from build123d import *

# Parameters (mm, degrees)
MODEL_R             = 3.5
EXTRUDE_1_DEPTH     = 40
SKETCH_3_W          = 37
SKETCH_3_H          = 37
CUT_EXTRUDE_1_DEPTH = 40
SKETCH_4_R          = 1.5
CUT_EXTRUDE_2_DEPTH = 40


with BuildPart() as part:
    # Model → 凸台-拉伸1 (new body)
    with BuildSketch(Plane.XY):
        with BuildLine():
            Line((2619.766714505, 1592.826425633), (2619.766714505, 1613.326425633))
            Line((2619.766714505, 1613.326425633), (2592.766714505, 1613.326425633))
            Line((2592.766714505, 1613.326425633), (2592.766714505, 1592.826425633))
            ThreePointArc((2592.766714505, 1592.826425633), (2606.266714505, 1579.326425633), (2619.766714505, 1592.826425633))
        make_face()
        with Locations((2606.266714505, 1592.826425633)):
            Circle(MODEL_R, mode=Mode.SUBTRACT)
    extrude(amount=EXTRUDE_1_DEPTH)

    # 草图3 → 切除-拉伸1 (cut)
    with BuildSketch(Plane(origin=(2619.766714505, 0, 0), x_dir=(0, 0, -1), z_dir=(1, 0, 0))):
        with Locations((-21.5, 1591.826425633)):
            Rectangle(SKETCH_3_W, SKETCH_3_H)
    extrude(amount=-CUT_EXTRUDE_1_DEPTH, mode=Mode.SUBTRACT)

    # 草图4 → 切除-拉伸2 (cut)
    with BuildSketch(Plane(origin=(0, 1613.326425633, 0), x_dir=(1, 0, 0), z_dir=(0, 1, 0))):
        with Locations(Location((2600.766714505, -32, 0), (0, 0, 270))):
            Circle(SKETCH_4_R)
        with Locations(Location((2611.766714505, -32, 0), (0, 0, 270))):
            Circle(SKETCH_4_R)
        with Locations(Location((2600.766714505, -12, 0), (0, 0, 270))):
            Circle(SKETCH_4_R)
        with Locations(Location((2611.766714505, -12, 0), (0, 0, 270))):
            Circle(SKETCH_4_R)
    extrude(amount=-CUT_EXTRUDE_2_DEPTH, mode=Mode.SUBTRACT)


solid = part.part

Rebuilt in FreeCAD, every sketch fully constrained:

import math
import FreeCAD as App
import Part
import Sketcher
from FreeCAD import Vector
Q = App.Units.Quantity


def add_polygon(sketch, points):
    """Adds a closed chain of lines whose ends are joined by coincident constraints."""
    first, n = sketch.GeometryCount, len(points)
    for a, b in zip(points, points[1:] + points[:1]):
        sketch.addGeometry(Part.LineSegment(App.Vector(*a, 0), App.Vector(*b, 0)), False)
    for i in range(n):
        sketch.addConstraint(Sketcher.Constraint("Coincident", first + i, 2, first + (i + 1) % n, 1))

doc = App.newDocument("Part")
body = doc.addObject("PartDesign::Body", "Body")

sketch1 = body.newObject("Sketcher::SketchObject", "Sketch")
sketch1.AttachmentSupport = (doc.getObject("XY_Plane"), [""])
sketch1.MapMode = "FlatFace"
sketch1.addGeometry([
    Part.LineSegment(Vector(2619.8, 1592.8, 0), Vector(2619.8, 1613.3, 0)),
    Part.LineSegment(Vector(2619.8, 1613.3, 0), Vector(2592.8, 1613.3, 0)),
    Part.LineSegment(Vector(2592.8, 1613.3, 0), Vector(2592.8, 1592.8, 0)),
    Part.ArcOfCircle(Part.Circle(Vector(2606.3, 1592.8, 0), Vector(0, 0, 1), 13.5), math.radians(180), math.radians(360)),
    Part.Circle(Vector(2606.3, 1592.8, 0), Vector(0, 0, 1), 3.5),
], False)
sketch1.addConstraint([
    Sketcher.Constraint("Coincident", 0, 2, 1, 1),
    Sketcher.Constraint("Coincident", 1, 2, 2, 1),
    Sketcher.Constraint("Tangent", 2, 2, 3, 1),
    Sketcher.Constraint("Tangent", 3, 2, 0, 1),
    Sketcher.Constraint("Vertical", 0),
    Sketcher.Constraint("Horizontal", 1),
    Sketcher.Constraint("Vertical", 2),
    Sketcher.Constraint("Coincident", 4, 3, 3, 3),
    Sketcher.Constraint("Diameter", 4, Q("7 mm")),
    Sketcher.Constraint("Radius", 3, Q("13.5 mm")),
    Sketcher.Constraint("DistanceY", 0, 1, 0, 2, Q("20.5 mm")),
    Sketcher.Constraint("DistanceX", -1, 1, 3, 3, Q("2606.266715 mm")),
    Sketcher.Constraint("DistanceY", -1, 1, 3, 3, Q("1592.826426 mm")),
])
pad1 = body.newObject("PartDesign::Pad", "Pad")
pad1.Profile = sketch1
pad1.Length = 40

sketch2 = body.newObject("Sketcher::SketchObject", "Sketch001")
sketch2.AttachmentSupport = (doc.getObject("YZ_Plane"), [""])
sketch2.MapMode = "FlatFace"
sketch2.AttachmentOffset = App.Placement(Vector(0, 0, 2619.766715), App.Rotation())
add_polygon(sketch2, [(1610, 40), (1573, 40), (1573, 3), (1610, 3)])
sketch2.addConstraint([
    Sketcher.Constraint("Horizontal", 0),
    Sketcher.Constraint("Vertical", 1),
    Sketcher.Constraint("Horizontal", 2),
    Sketcher.Constraint("Vertical", 3),
    Sketcher.Constraint("Equal", 2, 1),
    Sketcher.Constraint("DistanceX", 0, 2, 0, 1, Q("37 mm")),
    Sketcher.Constraint("DistanceY", -1, 1, 0, 2, Q("40 mm")),
    Sketcher.Constraint("DistanceX", -1, 1, 0, 2, Q("1573.326426 mm")),
])
pocket1 = body.newObject("PartDesign::Pocket", "Pocket")
pocket1.Profile = sketch2
pocket1.Length = 40

sketch3 = body.newObject("Sketcher::SketchObject", "Sketch002")
sketch3.AttachmentSupport = (doc.getObject("XZ_Plane"), [""])
sketch3.MapMode = "FlatFace"
sketch3.AttachmentOffset = App.Placement(Vector(0, 0, -1613.326426), App.Rotation())
sketch3.addGeometry([
    Part.Circle(Vector(2600.8, 32, 0), Vector(0, 0, 1), 1.5),
    Part.Circle(Vector(2611.8, 32, 0), Vector(0, 0, 1), 1.5),
    Part.Circle(Vector(2600.8, 12, 0), Vector(0, 0, 1), 1.5),
    Part.Circle(Vector(2611.8, 12, 0), Vector(0, 0, 1), 1.5),
], False)
sketch3.addConstraint([
    Sketcher.Constraint("Equal", 0, 1),
    Sketcher.Constraint("Equal", 1, 2),
    Sketcher.Constraint("Equal", 2, 3),
    Sketcher.Constraint("Horizontal", 0, 3, 1, 3),
    Sketcher.Constraint("Horizontal", 2, 3, 3, 3),
    Sketcher.Constraint("Vertical", 0, 3, 2, 3),
    Sketcher.Constraint("Vertical", 1, 3, 3, 3),
    Sketcher.Constraint("Diameter", 0, Q("3 mm")),
    Sketcher.Constraint("DistanceY", -1, 1, 0, 3, Q("32 mm")),
    Sketcher.Constraint("DistanceY", -1, 1, 2, 3, Q("12 mm")),
    Sketcher.Constraint("DistanceX", 0, 3, 1, 3, Q("11 mm")),
    Sketcher.Constraint("DistanceX", -1, 1, 0, 3, Q("2600.766715 mm")),
])
pocket2 = body.newObject("PartDesign::Pocket", "Pocket001")
pocket2.Profile = sketch3
pocket2.Length = 40
pocket2.Reversed = True

doc.recompute()
